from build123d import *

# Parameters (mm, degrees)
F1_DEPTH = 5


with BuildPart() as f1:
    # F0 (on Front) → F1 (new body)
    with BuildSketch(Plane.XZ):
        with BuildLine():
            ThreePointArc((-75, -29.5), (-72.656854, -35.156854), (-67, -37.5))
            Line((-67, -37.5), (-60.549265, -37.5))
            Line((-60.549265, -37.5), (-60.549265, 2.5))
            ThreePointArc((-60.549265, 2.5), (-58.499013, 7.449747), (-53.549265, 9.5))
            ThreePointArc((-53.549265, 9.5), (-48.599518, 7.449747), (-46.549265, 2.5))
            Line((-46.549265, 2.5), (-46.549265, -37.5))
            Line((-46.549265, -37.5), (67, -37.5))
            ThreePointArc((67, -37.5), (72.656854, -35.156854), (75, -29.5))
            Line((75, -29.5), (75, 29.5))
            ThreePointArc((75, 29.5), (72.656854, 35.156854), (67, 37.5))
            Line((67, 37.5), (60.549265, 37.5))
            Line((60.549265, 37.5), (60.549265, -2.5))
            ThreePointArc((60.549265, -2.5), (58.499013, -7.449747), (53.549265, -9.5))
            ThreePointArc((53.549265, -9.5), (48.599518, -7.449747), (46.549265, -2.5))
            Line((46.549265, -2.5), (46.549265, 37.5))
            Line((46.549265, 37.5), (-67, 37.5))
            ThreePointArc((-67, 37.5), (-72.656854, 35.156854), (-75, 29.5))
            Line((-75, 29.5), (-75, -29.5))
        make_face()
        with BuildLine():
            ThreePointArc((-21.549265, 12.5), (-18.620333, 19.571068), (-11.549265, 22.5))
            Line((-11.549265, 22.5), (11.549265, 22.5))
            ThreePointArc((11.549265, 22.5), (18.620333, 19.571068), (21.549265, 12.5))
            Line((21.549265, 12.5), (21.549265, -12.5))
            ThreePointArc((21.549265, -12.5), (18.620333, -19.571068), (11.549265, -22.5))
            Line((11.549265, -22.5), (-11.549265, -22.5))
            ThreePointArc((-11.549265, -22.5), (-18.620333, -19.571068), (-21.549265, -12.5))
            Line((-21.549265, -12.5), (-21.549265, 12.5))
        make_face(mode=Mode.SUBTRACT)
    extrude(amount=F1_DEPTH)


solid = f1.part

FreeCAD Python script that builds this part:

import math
import FreeCAD as App
import Part
import Sketcher
from FreeCAD import Vector
Q = App.Units.Quantity

doc = App.newDocument("Part")
params = doc.addObject("Spreadsheet::Sheet", "Params")
for row, (alias, value) in enumerate([
    ("sketch1_radius", "8.000001 mm"),
    ("sketch1_radius2", "7 mm"),
    ("sketch1_radius3", "9.999999 mm"),
    ("sketch1_height", "40 mm"),
    ("sketch1_height2", "59 mm"),
    ("pad1_length", "5 mm"),
], start=1):
    params.set(f"A{row}", alias)
    params.set(f"B{row}", "=" + value)
    params.setAlias(f"B{row}", alias)

body = doc.addObject("PartDesign::Body", "Body")

sketch1 = body.newObject("Sketcher::SketchObject", "Sketch")
sketch1.AttachmentSupport = (doc.getObject("XZ_Plane"), [""])
sketch1.MapMode = "FlatFace"
sketch1.addGeometry([
    Part.ArcOfCircle(Part.Circle(Vector(-67, -29, 0), Vector(0, 0, 1), 8), math.radians(-180), math.radians(-90)),
    Part.LineSegment(Vector(-67, -38, 0), Vector(-61, -38, 0)),
    Part.LineSegment(Vector(-61, -38, 0), Vector(-61, 2, 0)),
    Part.ArcOfCircle(Part.Circle(Vector(-54, 3, 0), Vector(0, 0, 1), 7), math.radians(90), math.radians(180)),
    Part.ArcOfCircle(Part.Circle(Vector(-54, 2, 0), Vector(0, 0, 1), 7), math.radians(0), math.radians(90)),
    Part.LineSegment(Vector(-47, 2, 0), Vector(-47, -38, 0)),
    Part.LineSegment(Vector(-47, -38, 0), Vector(67, -38, 0)),
    Part.ArcOfCircle(Part.Circle(Vector(67, -29, 0), Vector(0, 0, 1), 8), math.radians(-90), math.radians(0)),
    Part.LineSegment(Vector(75, -30, 0), Vector(75, 30, 0)),
    Part.ArcOfCircle(Part.Circle(Vector(67, 29, 0), Vector(0, 0, 1), 8), math.radians(0), math.radians(90)),
    Part.LineSegment(Vector(67, 38, 0), Vector(61, 38, 0)),
    Part.LineSegment(Vector(61, 38, 0), Vector(61, -2, 0)),
    Part.ArcOfCircle(Part.Circle(Vector(54, -3, 0), Vector(0, 0, 1), 7), math.radians(-90), math.radians(0)),
    Part.ArcOfCircle(Part.Circle(Vector(54, -2, 0), Vector(0, 0, 1), 7), math.radians(-180), math.radians(-90)),
    Part.LineSegment(Vector(47, -2, 0), Vector(47, 38, 0)),
    Part.LineSegment(Vector(47, 38, 0), Vector(-67, 38, 0)),
    Part.ArcOfCircle(Part.Circle(Vector(-67, 29, 0), Vector(0, 0, 1), 8), math.radians(90), math.radians(180)),
    Part.LineSegment(Vector(-75, 30, 0), Vector(-75, -30, 0)),
    Part.LineSegment(Vector(-22, -12, 0), Vector(-22, 12, 0)),
    Part.ArcOfCircle(Part.Circle(Vector(-12, 13, 0), Vector(0, 0, 1), 10), math.radians(90), math.radians(180)),
    Part.LineSegment(Vector(-12, 22, 0), Vector(12, 22, 0)),
    Part.ArcOfCircle(Part.Circle(Vector(12, 13, 0), Vector(0, 0, 1), 10), math.radians(0), math.radians(90)),
    Part.LineSegment(Vector(22, 12, 0), Vector(22, -12, 0)),
    Part.ArcOfCircle(Part.Circle(Vector(12, -13, 0), Vector(0, 0, 1), 10), math.radians(-90), math.radians(0)),
    Part.LineSegment(Vector(12, -22, 0), Vector(-12, -22, 0)),
    Part.ArcOfCircle(Part.Circle(Vector(-12, -13, 0), Vector(0, 0, 1), 10), math.radians(180), math.radians(270)),
], False)
sketch1.addConstraint([
    Sketcher.Constraint("Tangent", 0, 2, 1, 1),
    Sketcher.Constraint("Coincident", 1, 2, 2, 1),
    Sketcher.Constraint("Tangent", 2, 2, 3, 2),
    Sketcher.Constraint("Tangent", 3, 1, 4, 2),
    Sketcher.Constraint("Tangent", 4, 1, 5, 1),
    Sketcher.Constraint("Coincident", 5, 2, 6, 1),
    Sketcher.Constraint("Tangent", 6, 2, 7, 1),
    Sketcher.Constraint("Tangent", 7, 2, 8, 1),
    Sketcher.Constraint("Tangent", 8, 2, 9, 1),
    Sketcher.Constraint("Tangent", 9, 2, 10, 1),
    Sketcher.Constraint("Coincident", 10, 2, 11, 1),
    Sketcher.Constraint("Tangent", 11, 2, 12, 2),
    Sketcher.Constraint("Tangent", 12, 1, 13, 2),
    Sketcher.Constraint("Tangent", 13, 1, 14, 1),
    Sketcher.Constraint("Coincident", 14, 2, 15, 1),
    Sketcher.Constraint("Tangent", 15, 2, 16, 1),
    Sketcher.Constraint("Tangent", 16, 2, 17, 1),
    Sketcher.Constraint("Tangent", 17, 2, 0, 1),
    Sketcher.Constraint("Tangent", 18, 2, 19, 2),
    Sketcher.Constraint("Tangent", 19, 1, 20, 1),
    Sketcher.Constraint("Tangent", 20, 2, 21, 2),
    Sketcher.Constraint("Tangent", 21, 1, 22, 1),
    Sketcher.Constraint("Tangent", 22, 2, 23, 2),
    Sketcher.Constraint("Tangent", 23, 1, 24, 1),
    Sketcher.Constraint("Tangent", 24, 2, 25, 2),
    Sketcher.Constraint("Tangent", 25, 1, 18, 1),
    Sketcher.Constraint("Horizontal", 1),
    Sketcher.Constraint("Vertical", 2),
    Sketcher.Constraint("Vertical", 5),
    Sketcher.Constraint("Horizontal", 6),
    Sketcher.Constraint("Vertical", 8),
    Sketcher.Constraint("Horizontal", 10),
    Sketcher.Constraint("Vertical", 11),
    Sketcher.Constraint("Vertical", 14),
    Sketcher.Constraint("Horizontal", 15),
    Sketcher.Constraint("Vertical", 17),
    Sketcher.Constraint("Vertical", 18),
    Sketcher.Constraint("Horizontal", 20),
    Sketcher.Constraint("Vertical", 22),
    Sketcher.Constraint("Horizontal", 24),
    Sketcher.Constraint("Equal", 3, 4),
    Sketcher.Constraint("Equal", 0, 7),
    Sketcher.Constraint("Equal", 7, 9),
    Sketcher.Constraint("Equal", 4, 12),
    Sketcher.Constraint("Equal", 12, 13),
    Sketcher.Constraint("Equal", 9, 16),
    Sketcher.Constraint("Equal", 19, 21),
    Sketcher.Constraint("Equal", 21, 23),
    Sketcher.Constraint("Equal", 23, 25),
    Sketcher.Constraint("Symmetric", 0, 3, 9, 3, -1, 1),
    Sketcher.Constraint("Symmetric", 3, 3, 12, 3, -1, 1),
    Sketcher.Constraint("Symmetric", 19, 3, 23, 3, -1, 1),
    Sketcher.Constraint("Horizontal", 0, 3, 7, 3),
    Sketcher.Constraint("Horizontal", 9, 3, 16, 3),
    Sketcher.Constraint("Vertical", 4, 3, 3, 1),
    Sketcher.Constraint("Vertical", 13, 3, 12, 1),
    Sketcher.Constraint("Radius", 0, Q("8.000001 mm")),
    Sketcher.Constraint("Radius", 3, Q("7 mm")),
    Sketcher.Constraint("Radius", 19, Q("9.999999 mm")),
    Sketcher.Constraint("DistanceY", 2, 1, 2, 2, Q("40 mm")),
    Sketcher.Constraint("DistanceY", 8, 1, 8, 2, Q("59 mm")),
    Sketcher.Constraint("DistanceY", 18, 1, 18, 2, Q("25 mm")),
    Sketcher.Constraint("DistanceX", 0, 3, -1, 1, Q("66.999999 mm")),
    Sketcher.Constraint("DistanceX", 3, 3, 19, 3, Q("41.999999 mm")),
    Sketcher.Constraint("DistanceX", 20, 1, 20, 2, Q("23.09853 mm")),
])
sketch1.setExpression("Constraints[56]", "Params.sketch1_radius")
sketch1.setExpression("Constraints[57]", "Params.sketch1_radius2")
sketch1.setExpression("Constraints[58]", "Params.sketch1_radius3")
sketch1.setExpression("Constraints[59]", "Params.sketch1_height")
sketch1.setExpression("Constraints[60]", "Params.sketch1_height2")
pad1 = body.newObject("PartDesign::Pad", "Pad")
pad1.Profile = sketch1
pad1.setExpression("Length", "Params.pad1_length")

doc.recompute()
